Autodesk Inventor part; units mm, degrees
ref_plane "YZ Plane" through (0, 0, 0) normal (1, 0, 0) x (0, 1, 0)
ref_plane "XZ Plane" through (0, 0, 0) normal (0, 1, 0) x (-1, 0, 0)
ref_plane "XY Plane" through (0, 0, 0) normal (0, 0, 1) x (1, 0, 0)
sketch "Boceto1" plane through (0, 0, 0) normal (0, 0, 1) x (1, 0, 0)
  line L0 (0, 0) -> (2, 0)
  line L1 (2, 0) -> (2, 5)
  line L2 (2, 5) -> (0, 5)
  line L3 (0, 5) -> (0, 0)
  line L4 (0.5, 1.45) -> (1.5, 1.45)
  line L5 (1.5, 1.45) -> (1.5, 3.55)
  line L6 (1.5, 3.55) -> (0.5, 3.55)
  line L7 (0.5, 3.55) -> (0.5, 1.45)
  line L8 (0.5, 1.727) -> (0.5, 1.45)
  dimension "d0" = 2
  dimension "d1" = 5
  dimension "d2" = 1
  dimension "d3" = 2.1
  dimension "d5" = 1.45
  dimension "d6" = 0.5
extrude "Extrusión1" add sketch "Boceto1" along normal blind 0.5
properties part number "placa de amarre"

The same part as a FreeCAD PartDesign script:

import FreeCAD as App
import Part
import Sketcher

V = App.Vector


def add_polygon(sketch, points):
    """Adds a closed chain of lines whose ends are joined by coincident constraints."""
    first, n = sketch.GeometryCount, len(points)
    for a, b in zip(points, points[1:] + points[:1]):
        sketch.addGeometry(Part.LineSegment(App.Vector(*a, 0), App.Vector(*b, 0)), False)
    for i in range(n):
        sketch.addConstraint(Sketcher.Constraint("Coincident", first + i, 2, first + (i + 1) % n, 1))

doc = App.newDocument("Part")
body = doc.addObject("PartDesign::Body", "Body")

# Sketch on XY plane
sketch1 = body.newObject("Sketcher::SketchObject", "Sketch")
sketch1.AttachmentSupport = (doc.getObject("XY_Plane"), [""])
sketch1.MapMode = "FlatFace"
add_polygon(sketch1, [(0, 5), (0, 0), (2, 0), (2, 5)])  # lines 0-3
add_polygon(sketch1, [(1.5, 1.45), (0.5, 1.45), (0.5, 3.55), (1.5, 3.55)])  # lines 4-7
sketch1.addConstraint(Sketcher.Constraint("Vertical", 0))
sketch1.addConstraint(Sketcher.Constraint("Horizontal", 1))
sketch1.addConstraint(Sketcher.Constraint("Vertical", 2))
sketch1.addConstraint(Sketcher.Constraint("Horizontal", 3))
sketch1.addConstraint(Sketcher.Constraint("Horizontal", 4))
sketch1.addConstraint(Sketcher.Constraint("Vertical", 5))
sketch1.addConstraint(Sketcher.Constraint("Horizontal", 6))
sketch1.addConstraint(Sketcher.Constraint("Vertical", 7))
sketch1.addConstraint(Sketcher.Constraint("Coincident", 0, 2, -1, 1))
sketch1.addConstraint(Sketcher.Constraint("DistanceX", 1, 1, 1, 2, 2.0))
sketch1.addConstraint(Sketcher.Constraint("DistanceX", 4, 2, 4, 1, 1.0))
sketch1.addConstraint(Sketcher.Constraint("DistanceY", 0, 2, 0, 1, 5.0))
sketch1.addConstraint(Sketcher.Constraint("DistanceY", 5, 1, 5, 2, 2.1))
sketch1.addConstraint(Sketcher.Constraint("DistanceX", -1, 1, 4, 2, 0.5))
sketch1.addConstraint(Sketcher.Constraint("DistanceY", -1, 1, 4, 2, 1.45))
pad1 = body.newObject("PartDesign::Pad", "Pad")
pad1.Profile = sketch1
pad1.Length = 0.5

doc.recompute()
